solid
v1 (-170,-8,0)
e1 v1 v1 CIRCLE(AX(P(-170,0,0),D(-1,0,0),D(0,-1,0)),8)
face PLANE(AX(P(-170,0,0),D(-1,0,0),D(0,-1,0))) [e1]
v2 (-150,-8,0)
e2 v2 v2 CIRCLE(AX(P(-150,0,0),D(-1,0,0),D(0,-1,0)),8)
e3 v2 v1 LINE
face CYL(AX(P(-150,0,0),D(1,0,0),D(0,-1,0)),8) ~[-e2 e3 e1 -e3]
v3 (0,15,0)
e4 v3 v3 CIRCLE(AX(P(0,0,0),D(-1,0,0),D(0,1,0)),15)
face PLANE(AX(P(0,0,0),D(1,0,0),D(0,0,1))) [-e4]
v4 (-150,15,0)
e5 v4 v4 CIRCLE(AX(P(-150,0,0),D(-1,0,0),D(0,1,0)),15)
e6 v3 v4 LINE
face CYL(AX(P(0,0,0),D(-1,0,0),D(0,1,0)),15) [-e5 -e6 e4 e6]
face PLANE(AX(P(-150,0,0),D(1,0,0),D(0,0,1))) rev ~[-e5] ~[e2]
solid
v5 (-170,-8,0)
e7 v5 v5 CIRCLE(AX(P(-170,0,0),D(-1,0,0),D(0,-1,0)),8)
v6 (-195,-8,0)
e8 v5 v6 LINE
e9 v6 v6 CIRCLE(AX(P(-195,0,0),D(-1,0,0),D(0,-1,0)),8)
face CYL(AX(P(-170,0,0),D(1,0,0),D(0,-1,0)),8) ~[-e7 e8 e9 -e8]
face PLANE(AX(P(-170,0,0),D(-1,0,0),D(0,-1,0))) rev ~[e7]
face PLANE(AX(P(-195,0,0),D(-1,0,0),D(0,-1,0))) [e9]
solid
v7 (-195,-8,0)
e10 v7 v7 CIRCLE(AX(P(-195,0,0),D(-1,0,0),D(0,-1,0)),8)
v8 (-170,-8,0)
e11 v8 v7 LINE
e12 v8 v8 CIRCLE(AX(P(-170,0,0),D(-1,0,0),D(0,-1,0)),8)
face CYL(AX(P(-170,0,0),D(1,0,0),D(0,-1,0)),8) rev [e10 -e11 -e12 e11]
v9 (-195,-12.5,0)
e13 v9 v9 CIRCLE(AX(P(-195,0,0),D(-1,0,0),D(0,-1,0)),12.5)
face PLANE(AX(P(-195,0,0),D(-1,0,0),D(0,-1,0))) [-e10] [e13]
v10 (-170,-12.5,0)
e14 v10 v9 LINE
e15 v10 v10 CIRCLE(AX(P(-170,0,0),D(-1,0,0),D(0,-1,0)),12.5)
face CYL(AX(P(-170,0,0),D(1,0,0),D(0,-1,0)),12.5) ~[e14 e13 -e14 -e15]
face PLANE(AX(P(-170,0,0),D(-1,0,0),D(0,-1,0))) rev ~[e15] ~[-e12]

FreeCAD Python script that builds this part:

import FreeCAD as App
import Part
import Sketcher
from FreeCAD import Vector
Q = App.Units.Quantity

doc = App.newDocument("Part")
body = doc.addObject("PartDesign::Body", "Body")

# Sketch on YZ plane
sketch1 = doc.addObject("Sketcher::SketchObject", "Sketch")
body.addObject(sketch1)
sketch1.AttachmentSupport = (doc.YZ_Plane, [""])
sketch1.MapMode = "FlatFace"
sketch1.addGeometry(Part.Circle(Vector(0, 0, 0), Vector(0, 0, 1), 15), False)
sketch1.addConstraint(Sketcher.Constraint("Coincident", 0, 3, -1, 1))
sketch1.addConstraint(Sketcher.Constraint("Diameter", 0, Q("30 mm")))

# Sketch on XY plane
sketch2 = doc.addObject("Sketcher::SketchObject", "Sketch001")
body.addObject(sketch2)
sketch2.AttachmentSupport = (doc.XY_Plane, [""])
sketch2.MapMode = "FlatFace"
sketch2.addGeometry(Part.LineSegment(Vector(0, 0, 0), Vector(-150, 0, 0)), False)
sketch2.addConstraint(Sketcher.Constraint("Horizontal", 0))
sketch2.addConstraint(Sketcher.Constraint("Coincident", 0, 1, -1, 1))
sketch2.addConstraint(Sketcher.Constraint("DistanceX", 0, 2, 0, 1, Q("150 mm")))
doc.recompute()

additivepipe = doc.addObject("PartDesign::AdditivePipe", "AdditivePipe")
body.addObject(additivepipe)
additivepipe.Profile = sketch1
additivepipe.Spine = (sketch2, ["Edge1"])

# Sketch on YZ plane
sketch3 = doc.addObject("Sketcher::SketchObject", "Sketch002")
body.addObject(sketch3)
sketch3.AttachmentSupport = (doc.YZ_Plane, [""])
sketch3.MapMode = "FlatFace"
sketch3.AttachmentOffset = App.Placement(Vector(0, 0, -150), App.Rotation())
sketch3.addGeometry(Part.Circle(Vector(0, 0, 0), Vector(0, 0, 1), 8), False)
sketch3.addConstraint(Sketcher.Constraint("Coincident", 0, 3, -1, 1))
sketch3.addConstraint(Sketcher.Constraint("Diameter", 0, Q("16 mm")))
pad1 = doc.addObject("PartDesign::Pad", "Pad")
body.addObject(pad1)
pad1.Profile = sketch3
pad1.Length = 20
pad1.Reversed = True
body2 = doc.addObject("PartDesign::Body", "Body001")

# Sketch on YZ plane
sketch4 = doc.addObject("Sketcher::SketchObject", "Sketch003")
body2.addObject(sketch4)
sketch4.AttachmentSupport = (doc.getObject("YZ_Plane001"), [""])
sketch4.MapMode = "FlatFace"
sketch4.AttachmentOffset = App.Placement(Vector(0, 0, -170), App.Rotation())
sketch4.addGeometry(Part.Circle(Vector(0, 0, 0), Vector(0, 0, 1), 12), False)
sketch4.addGeometry(Part.Circle(Vector(0, 0, 0), Vector(0, 0, 1), 8), False)
sketch4.addConstraint(Sketcher.Constraint("Coincident", 0, 3, -1, 1))
sketch4.addConstraint(Sketcher.Constraint("Coincident", 1, 3, -1, 1))
sketch4.addConstraint(Sketcher.Constraint("Diameter", 0, Q("25 mm")))
sketch4.addConstraint(Sketcher.Constraint("Diameter", 1, Q("16 mm")))
pad2 = doc.addObject("PartDesign::Pad", "Pad001")
body2.addObject(pad2)
pad2.Profile = sketch4
pad2.Length = 25
pad2.Reversed = True
body3 = doc.addObject("PartDesign::Body", "Body002")

# Sketch on YZ plane
sketch5 = doc.addObject("Sketcher::SketchObject", "Sketch004")
body3.addObject(sketch5)
sketch5.AttachmentSupport = (doc.getObject("YZ_Plane002"), [""])
sketch5.MapMode = "FlatFace"
sketch5.AttachmentOffset = App.Placement(Vector(0, 0, -170), App.Rotation())
sketch5.addGeometry(Part.Circle(Vector(0, 0, 0), Vector(0, 0, 1), 8), False)
sketch5.addConstraint(Sketcher.Constraint("Coincident", 0, 3, -1, 1))
sketch5.addConstraint(Sketcher.Constraint("Diameter", 0, Q("16 mm")))
pad3 = doc.addObject("PartDesign::Pad", "Pad002")
body3.addObject(pad3)
pad3.Profile = sketch5
pad3.Length = 25
pad3.Reversed = True

doc.recompute()
